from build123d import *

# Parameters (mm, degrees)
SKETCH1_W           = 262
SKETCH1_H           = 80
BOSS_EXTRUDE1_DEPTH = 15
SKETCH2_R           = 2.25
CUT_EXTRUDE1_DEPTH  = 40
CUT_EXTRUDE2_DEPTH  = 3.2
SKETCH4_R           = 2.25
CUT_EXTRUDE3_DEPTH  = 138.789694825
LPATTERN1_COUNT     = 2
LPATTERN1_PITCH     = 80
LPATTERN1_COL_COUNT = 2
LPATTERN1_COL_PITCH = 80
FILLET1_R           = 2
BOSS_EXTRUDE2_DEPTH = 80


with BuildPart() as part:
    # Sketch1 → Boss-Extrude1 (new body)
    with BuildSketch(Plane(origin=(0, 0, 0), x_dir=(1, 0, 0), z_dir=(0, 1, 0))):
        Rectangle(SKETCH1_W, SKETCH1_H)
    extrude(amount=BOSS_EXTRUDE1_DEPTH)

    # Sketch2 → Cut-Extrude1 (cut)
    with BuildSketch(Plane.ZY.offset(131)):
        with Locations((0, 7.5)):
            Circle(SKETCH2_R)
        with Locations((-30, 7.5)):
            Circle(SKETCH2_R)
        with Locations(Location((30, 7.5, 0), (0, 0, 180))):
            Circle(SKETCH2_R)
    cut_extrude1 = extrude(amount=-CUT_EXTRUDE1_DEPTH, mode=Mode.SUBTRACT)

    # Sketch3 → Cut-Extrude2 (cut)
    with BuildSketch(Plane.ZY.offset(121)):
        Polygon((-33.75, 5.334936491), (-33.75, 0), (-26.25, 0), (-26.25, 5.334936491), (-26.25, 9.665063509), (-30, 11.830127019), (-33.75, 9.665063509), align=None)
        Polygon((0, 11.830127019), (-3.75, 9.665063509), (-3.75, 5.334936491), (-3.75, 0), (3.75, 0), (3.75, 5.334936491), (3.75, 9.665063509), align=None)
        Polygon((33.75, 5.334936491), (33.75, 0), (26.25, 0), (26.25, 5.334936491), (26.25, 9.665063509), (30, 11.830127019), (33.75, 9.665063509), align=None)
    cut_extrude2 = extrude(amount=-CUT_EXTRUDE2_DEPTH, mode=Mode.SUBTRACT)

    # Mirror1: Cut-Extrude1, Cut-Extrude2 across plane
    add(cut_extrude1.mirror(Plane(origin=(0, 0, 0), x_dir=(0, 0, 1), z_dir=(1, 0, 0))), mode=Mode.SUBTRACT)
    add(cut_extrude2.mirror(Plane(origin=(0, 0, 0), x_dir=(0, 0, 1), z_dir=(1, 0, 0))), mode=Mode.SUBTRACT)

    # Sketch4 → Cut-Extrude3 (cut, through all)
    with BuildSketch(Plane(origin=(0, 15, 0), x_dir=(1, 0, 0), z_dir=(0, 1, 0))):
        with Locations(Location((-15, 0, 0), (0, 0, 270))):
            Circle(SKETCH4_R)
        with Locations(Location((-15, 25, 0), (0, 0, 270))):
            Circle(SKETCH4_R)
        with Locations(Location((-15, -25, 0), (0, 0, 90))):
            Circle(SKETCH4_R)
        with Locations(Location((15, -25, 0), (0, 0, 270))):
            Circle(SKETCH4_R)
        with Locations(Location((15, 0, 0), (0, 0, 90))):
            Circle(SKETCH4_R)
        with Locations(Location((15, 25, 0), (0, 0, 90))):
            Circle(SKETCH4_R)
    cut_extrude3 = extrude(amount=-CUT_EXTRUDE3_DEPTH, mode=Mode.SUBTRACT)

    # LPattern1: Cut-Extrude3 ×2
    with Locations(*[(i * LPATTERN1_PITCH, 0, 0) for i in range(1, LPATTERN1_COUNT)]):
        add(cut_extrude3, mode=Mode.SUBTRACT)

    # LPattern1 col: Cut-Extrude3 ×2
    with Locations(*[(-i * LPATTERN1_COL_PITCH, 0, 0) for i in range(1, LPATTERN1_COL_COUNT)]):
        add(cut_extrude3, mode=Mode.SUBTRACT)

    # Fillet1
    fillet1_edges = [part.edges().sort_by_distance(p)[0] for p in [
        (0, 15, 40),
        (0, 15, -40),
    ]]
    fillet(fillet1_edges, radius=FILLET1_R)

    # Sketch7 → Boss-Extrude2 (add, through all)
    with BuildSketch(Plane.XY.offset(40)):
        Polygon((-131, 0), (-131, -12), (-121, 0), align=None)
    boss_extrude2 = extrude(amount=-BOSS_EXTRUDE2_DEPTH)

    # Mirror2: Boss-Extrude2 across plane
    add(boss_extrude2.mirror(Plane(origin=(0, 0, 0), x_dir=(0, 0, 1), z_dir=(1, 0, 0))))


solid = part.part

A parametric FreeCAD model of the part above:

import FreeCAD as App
import Part
import Sketcher
Q = App.Units.Quantity


def edges_at(feature, points):
    """Names of the edges that pass closest to the given points."""
    edges = feature.Shape.Edges
    near = lambda p: min(range(len(edges)), key=lambda i: edges[i].distToShape(Part.Vertex(*p))[0])
    return sorted({f"Edge{near(p) + 1}" for p in points})

doc = App.newDocument("Part")
body = doc.addObject("PartDesign::Body", "Body")

# Sketch on XZ plane
sketch1 = doc.addObject("Sketcher::SketchObject", "Sketch")
body.addObject(sketch1)
sketch1.AttachmentSupport = (doc.XZ_Plane, [""])
sketch1.MapMode = "FlatFace"
sketch1.addGeometry([
    Part.LineSegment(App.Vector(-131, -40, 0), App.Vector(-131, 40, 0)),
    Part.LineSegment(App.Vector(-131, 40, 0), App.Vector(131, 40, 0)),
    Part.LineSegment(App.Vector(131, 40, 0), App.Vector(131, -40, 0)),
    Part.LineSegment(App.Vector(131, -40, 0), App.Vector(-131, -40, 0)),
], False)
sketch1.addConstraint([
    Sketcher.Constraint("Coincident", 0, 2, 1, 1),
    Sketcher.Constraint("Coincident", 1, 2, 2, 1),
    Sketcher.Constraint("Coincident", 2, 2, 3, 1),
    Sketcher.Constraint("Coincident", 3, 2, 0, 1),
    Sketcher.Constraint("Vertical", 0),
    Sketcher.Constraint("Horizontal", 1),
    Sketcher.Constraint("Vertical", 2),
    Sketcher.Constraint("Horizontal", 3),
    Sketcher.Constraint("Symmetric", 0, 2, 2, 2, -1, 1),
    Sketcher.Constraint("DistanceX", 1, 1, 1, 2, Q("262 mm")),
    Sketcher.Constraint("DistanceY", 0, 1, 0, 2, Q("80 mm")),
])
pad1 = doc.addObject("PartDesign::Pad", "Pad")
body.addObject(pad1)
pad1.Profile = sketch1
pad1.Length = 15
pad1.Reversed = True

# Sketch on YZ plane
sketch2 = doc.addObject("Sketcher::SketchObject", "Sketch001")
body.addObject(sketch2)
sketch2.AttachmentSupport = (doc.YZ_Plane, [""])
sketch2.MapMode = "FlatFace"
sketch2.AttachmentOffset = App.Placement(App.Vector(0, 0, -131), App.Rotation())
sketch2.addGeometry([
    Part.Circle(App.Vector(7.5, 0, 0), App.Vector(0, 0, 1), 2.2),
    Part.Circle(App.Vector(7.5, -30, 0), App.Vector(0, 0, 1), 2.2),
    Part.Circle(App.Vector(7.5, 30, 0), App.Vector(0, 0, 1), 2.2),
], False)
sketch2.addConstraint([
    Sketcher.Constraint("Equal", 0, 1),
    Sketcher.Constraint("Equal", 1, 2),
    Sketcher.Constraint("Symmetric", 1, 3, 2, 3, -1),
    Sketcher.Constraint("PointOnObject", 0, 3, -1),
    Sketcher.Constraint("Vertical", 0, 3, 1, 3),
    Sketcher.Constraint("Diameter", 0, Q("4.5 mm")),
    Sketcher.Constraint("DistanceY", 1, 3, -1, 1, Q("30 mm")),
    Sketcher.Constraint("DistanceX", -1, 1, 0, 3, Q("7.5 mm")),
])
pocket1 = doc.addObject("PartDesign::Pocket", "Pocket")
body.addObject(pocket1)
pocket1.Profile = sketch2
pocket1.Length = 40
pocket1.Reversed = True

# Sketch on YZ plane
sketch3 = doc.addObject("Sketcher::SketchObject", "Sketch002")
body.addObject(sketch3)
sketch3.AttachmentSupport = (doc.YZ_Plane, [""])
sketch3.MapMode = "FlatFace"
sketch3.AttachmentOffset = App.Placement(App.Vector(0, 0, -121), App.Rotation())
sketch3.addGeometry([
    Part.LineSegment(App.Vector(0, -33.8, 0), App.Vector(0, -26.2, 0)),  # 0
    Part.LineSegment(App.Vector(0, -26.2, 0), App.Vector(9.7, -26.2, 0)),  # 1
    Part.LineSegment(App.Vector(9.7, -26.2, 0), App.Vector(11.8, -30, 0)),  # 2
    Part.LineSegment(App.Vector(11.8, -30, 0), App.Vector(9.7, -33.8, 0)),  # 3
    Part.LineSegment(App.Vector(9.7, -33.8, 0), App.Vector(0, -33.8, 0)),  # 4
    Part.LineSegment(App.Vector(11.8, 0, 0), App.Vector(9.7, -3.8, 0)),  # 5
    Part.LineSegment(App.Vector(9.7, -3.8, 0), App.Vector(0, -3.8, 0)),  # 6
    Part.LineSegment(App.Vector(0, -3.8, 0), App.Vector(0, 3.8, 0)),  # 7
    Part.LineSegment(App.Vector(0, 3.8, 0), App.Vector(9.7, 3.8, 0)),  # 8
    Part.LineSegment(App.Vector(9.7, 3.8, 0), App.Vector(11.8, 0, 0)),  # 9
    Part.LineSegment(App.Vector(0, 33.8, 0), App.Vector(9.7, 33.8, 0)),  # 10
    Part.LineSegment(App.Vector(9.7, 33.8, 0), App.Vector(11.8, 30, 0)),  # 11
    Part.LineSegment(App.Vector(11.8, 30, 0), App.Vector(9.7, 26.2, 0)),  # 12
    Part.LineSegment(App.Vector(9.7, 26.2, 0), App.Vector(0, 26.2, 0)),  # 13
    Part.LineSegment(App.Vector(0, 26.2, 0), App.Vector(0, 33.8, 0)),  # 14
], False)
sketch3.addConstraint([
    Sketcher.Constraint("Coincident", 0, 2, 1, 1),
    Sketcher.Constraint("Coincident", 1, 2, 2, 1),
    Sketcher.Constraint("Coincident", 2, 2, 3, 1),
    Sketcher.Constraint("Coincident", 3, 2, 4, 1),
    Sketcher.Constraint("Coincident", 4, 2, 0, 1),
    Sketcher.Constraint("Coincident", 5, 2, 6, 1),
    Sketcher.Constraint("Coincident", 6, 2, 7, 1),
    Sketcher.Constraint("Coincident", 7, 2, 8, 1),
    Sketcher.Constraint("Coincident", 8, 2, 9, 1),
    Sketcher.Constraint("Coincident", 9, 2, 5, 1),
    Sketcher.Constraint("Coincident", 10, 2, 11, 1),
    Sketcher.Constraint("Coincident", 11, 2, 12, 1),
    Sketcher.Constraint("Coincident", 12, 2, 13, 1),
    Sketcher.Constraint("Coincident", 13, 2, 14, 1),
    Sketcher.Constraint("Coincident", 14, 2, 10, 1),
    Sketcher.Constraint("Vertical", 0),
    Sketcher.Constraint("Horizontal", 1),
    Sketcher.Constraint("Horizontal", 4),
    Sketcher.Constraint("Horizontal", 6),
    Sketcher.Constraint("Vertical", 7),
    Sketcher.Constraint("Horizontal", 8),
    Sketcher.Constraint("Horizontal", 10),
    Sketcher.Constraint("Horizontal", 13),
    Sketcher.Constraint("Vertical", 14),
    Sketcher.Constraint("Symmetric", 6, 2, 7, 2, -1, 1),
    Sketcher.Constraint("Symmetric", 0, 2, 13, 2, -1, 1),
    Sketcher.Constraint("Symmetric", 3, 2, 10, 2, -1),
    Sketcher.Constraint("Symmetric", 2, 2, 11, 2, -1),
    Sketcher.Constraint("PointOnObject", 0, 2, -2),
    Sketcher.Constraint("PointOnObject", 9, 2, -1),
    Sketcher.Constraint("Parallel", 3, 5),
    Sketcher.Constraint("Parallel", 2, 9),
    Sketcher.Constraint("Parallel", 9, 11),
    Sketcher.Constraint("Parallel", 5, 12),
    Sketcher.Constraint("Vertical", 1, 2, 3, 2),
    Sketcher.Constraint("Vertical", 3, 2, 5, 2),
    Sketcher.Constraint("Vertical", 2, 2, 9, 2),
    Sketcher.Constraint("Angle", 2, Q("-60 deg")),
    Sketcher.Constraint("DistanceY", 0, 1, 0, 2, Q("7.5 mm")),
    Sketcher.Constraint("DistanceY", 2, 2, -1, 1, Q("30 mm")),
    Sketcher.Constraint("DistanceX", 1, 1, 1, 2, Q("9.665064 mm")),
])
pocket2 = doc.addObject("PartDesign::Pocket", "Pocket001")
body.addObject(pocket2)
pocket2.Profile = sketch3
pocket2.Length = 3.2
pocket2.Reversed = True
doc.recompute()

mirrored = doc.addObject("PartDesign::Mirrored", "Mirrored")
body.addObject(mirrored)
mirrored.Originals = [pocket1, pocket2]
mirrored.MirrorPlane = (doc.YZ_Plane, [""])
body.Tip = mirrored

# Sketch on XZ plane
sketch4 = doc.addObject("Sketcher::SketchObject", "Sketch003")
body.addObject(sketch4)
sketch4.AttachmentSupport = (doc.XZ_Plane, [""])
sketch4.MapMode = "FlatFace"
sketch4.AttachmentOffset = App.Placement(App.Vector(0, 0, -15), App.Rotation())
sketch4.addGeometry([
    Part.Circle(App.Vector(-15, 0, 0), App.Vector(0, 0, 1), 2.2),  # 0
    Part.Circle(App.Vector(-15, -25, 0), App.Vector(0, 0, 1), 2.2),  # 1
    Part.Circle(App.Vector(-15, 25, 0), App.Vector(0, 0, 1), 2.2),  # 2
    Part.Circle(App.Vector(15, 25, 0), App.Vector(0, 0, 1), 2.2),  # 3
    Part.Circle(App.Vector(15, 0, 0), App.Vector(0, 0, 1), 2.2),  # 4
    Part.Circle(App.Vector(15, -25, 0), App.Vector(0, 0, 1), 2.2),  # 5
], False)
sketch4.addConstraint([
    Sketcher.Constraint("Equal", 0, 1),
    Sketcher.Constraint("Equal", 1, 2),
    Sketcher.Constraint("Equal", 2, 3),
    Sketcher.Constraint("Equal", 3, 4),
    Sketcher.Constraint("Equal", 4, 5),
    Sketcher.Constraint("Symmetric", 1, 3, 3, 3, -1, 1),
    Sketcher.Constraint("Symmetric", 0, 3, 4, 3, -1, 1),
    Sketcher.Constraint("Symmetric", 2, 3, 5, 3, -1, 1),
    Sketcher.Constraint("Symmetric", 2, 3, 3, 3, -2),
    Sketcher.Constraint("PointOnObject", 0, 3, -1),
    Sketcher.Constraint("Vertical", 0, 3, 1, 3),
    Sketcher.Constraint("Diameter", 0, Q("4.5 mm")),
    Sketcher.Constraint("DistanceX", 0, 3, -1, 1, Q("15 mm")),
    Sketcher.Constraint("DistanceY", 1, 3, -1, 1, Q("25 mm")),
])
pocket3 = doc.addObject("PartDesign::Pocket", "Pocket002")
body.addObject(pocket3)
pocket3.Profile = sketch4
pocket3.Type = "ThroughAll"
pocket3.Reversed = True
doc.recompute()

linearpattern = doc.addObject("PartDesign::LinearPattern", "LinearPattern")
body.addObject(linearpattern)
linearpattern.Originals = [pocket3]
linearpattern.Direction = (doc.X_Axis, [""])
linearpattern.Mode = "offset"
linearpattern.Offset = 80
linearpattern.Occurrences = 2
body.Tip = linearpattern
doc.recompute()

linearpattern2 = doc.addObject("PartDesign::LinearPattern", "LinearPattern001")
body.addObject(linearpattern2)
linearpattern2.Originals = [pocket3]
linearpattern2.Direction = (doc.X_Axis, [""])
linearpattern2.Mode = "offset"
linearpattern2.Offset = 80
linearpattern2.Occurrences = 2
linearpattern2.Reversed = True
body.Tip = linearpattern2
doc.recompute()

fillet = doc.addObject("PartDesign::Fillet", "Fillet")
body.addObject(fillet)
fillet.Base = (linearpattern2, edges_at(linearpattern2, [(0, 15, 40), (0, 15, -40)]))
fillet.Radius = 2

# Sketch on XY plane
sketch5 = doc.addObject("Sketcher::SketchObject", "Sketch004")
body.addObject(sketch5)
sketch5.AttachmentSupport = (doc.XY_Plane, [""])
sketch5.MapMode = "FlatFace"
sketch5.AttachmentOffset = App.Placement(App.Vector(0, 0, 40), App.Rotation())
sketch5.addGeometry([
    Part.LineSegment(App.Vector(-131, 0, 0), App.Vector(-131, -12, 0)),
    Part.LineSegment(App.Vector(-131, -12, 0), App.Vector(-121, 0, 0)),
    Part.LineSegment(App.Vector(-121, 0, 0), App.Vector(-131, 0, 0)),
], False)
sketch5.addConstraint([
    Sketcher.Constraint("Coincident", 0, 2, 1, 1),
    Sketcher.Constraint("Coincident", 1, 2, 2, 1),
    Sketcher.Constraint("Coincident", 2, 2, 0, 1),
    Sketcher.Constraint("Vertical", 0),
    Sketcher.Constraint("Horizontal", 2),
    Sketcher.Constraint("PointOnObject", 1, 2, -1),
    Sketcher.Constraint("DistanceX", 2, 2, 2, 1, Q("10 mm")),
    Sketcher.Constraint("DistanceY", 0, 2, 0, 1, Q("12 mm")),
    Sketcher.Constraint("DistanceX", 0, 2, -1, 1, Q("131 mm")),
])
pad2 = doc.addObject("PartDesign::Pad", "Pad001")
body.addObject(pad2)
pad2.Profile = sketch5
pad2.Length = 80
pad2.Reversed = True
doc.recompute()

mirrored2 = doc.addObject("PartDesign::Mirrored", "Mirrored001")
body.addObject(mirrored2)
mirrored2.Originals = [pad2]
mirrored2.MirrorPlane = (doc.YZ_Plane, [""])
body.Tip = mirrored2

doc.recompute()
